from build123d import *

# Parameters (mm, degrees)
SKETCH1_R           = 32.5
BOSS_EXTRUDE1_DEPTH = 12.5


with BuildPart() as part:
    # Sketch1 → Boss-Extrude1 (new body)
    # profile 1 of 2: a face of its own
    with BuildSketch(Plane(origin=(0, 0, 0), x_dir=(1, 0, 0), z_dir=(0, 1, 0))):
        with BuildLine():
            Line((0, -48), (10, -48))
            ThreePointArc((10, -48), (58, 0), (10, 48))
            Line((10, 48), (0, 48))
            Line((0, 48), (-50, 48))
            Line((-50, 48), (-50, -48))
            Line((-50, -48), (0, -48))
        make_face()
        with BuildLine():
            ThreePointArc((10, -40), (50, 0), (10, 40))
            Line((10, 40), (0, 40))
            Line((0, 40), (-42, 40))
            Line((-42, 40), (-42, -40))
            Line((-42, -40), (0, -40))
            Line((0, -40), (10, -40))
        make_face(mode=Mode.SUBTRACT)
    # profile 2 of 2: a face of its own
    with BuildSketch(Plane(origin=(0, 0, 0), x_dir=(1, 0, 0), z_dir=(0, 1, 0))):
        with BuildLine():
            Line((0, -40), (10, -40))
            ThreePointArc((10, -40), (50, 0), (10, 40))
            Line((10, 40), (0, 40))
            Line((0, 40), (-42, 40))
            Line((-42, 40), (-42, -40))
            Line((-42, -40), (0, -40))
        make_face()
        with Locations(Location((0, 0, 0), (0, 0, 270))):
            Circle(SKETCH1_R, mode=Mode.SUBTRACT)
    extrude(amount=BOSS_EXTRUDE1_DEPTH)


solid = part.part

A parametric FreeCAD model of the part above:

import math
import FreeCAD as App
import Part
import Sketcher

V = App.Vector

doc = App.newDocument("Part")
params = doc.addObject("Spreadsheet::Sheet", "Params")
for row, (alias, value) in enumerate([
    ("sketch1_diameter", "65 mm"),
    ("sketch1_radius", "48 mm"),
    ("sketch1_width", "60 mm"),
    ("pad1_length", "12.5 mm"),
], start=1):
    params.set(f"A{row}", alias)
    params.set(f"B{row}", "=" + value)
    params.setAlias(f"B{row}", alias)

body = doc.addObject("PartDesign::Body", "Body")

sketch1 = body.newObject("Sketcher::SketchObject", "Sketch")
sketch1.AttachmentSupport = (doc.getObject("XZ_Plane"), [""])
sketch1.MapMode = "FlatFace"
sketch1.addGeometry(Part.ArcOfCircle(Part.Circle(V(10, 0, 0), V(0, 0, 1), 48), math.radians(-90), math.radians(90)), False)
sketch1.addGeometry(Part.LineSegment(V(10, -48, 0), V(-50, -48, 0)), False)
sketch1.addGeometry(Part.LineSegment(V(-50, -48, 0), V(-50, 48, 0)), False)
sketch1.addGeometry(Part.LineSegment(V(-50, 48, 0), V(10, 48, 0)), False)
sketch1.addGeometry(Part.Circle(V(0, 0, 0), V(0, 0, 1), 32), False)
sketch1.addConstraint(Sketcher.Constraint("Tangent", 0, 1, 1, 1))
sketch1.addConstraint(Sketcher.Constraint("Coincident", 1, 2, 2, 1))
sketch1.addConstraint(Sketcher.Constraint("Coincident", 2, 2, 3, 1))
sketch1.addConstraint(Sketcher.Constraint("Tangent", 3, 2, 0, 2))
sketch1.addConstraint(Sketcher.Constraint("Horizontal", 1))
sketch1.addConstraint(Sketcher.Constraint("Vertical", 2))
sketch1.addConstraint(Sketcher.Constraint("Horizontal", 3))
sketch1.addConstraint(Sketcher.Constraint("Coincident", 4, 3, -1, 1))
sketch1.addConstraint(Sketcher.Constraint("PointOnObject", 0, 3, -1))
sketch1.addConstraint(Sketcher.Constraint("Diameter", 4, 65.0))
sketch1.addConstraint(Sketcher.Constraint("Radius", 0, 48.0))
sketch1.addConstraint(Sketcher.Constraint("DistanceX", 1, 2, 1, 1, 60.0))
sketch1.addConstraint(Sketcher.Constraint("DistanceX", -1, 1, 0, 3, 10.0))
sketch1.setExpression("Constraints[9]", "Params.sketch1_diameter")
sketch1.setExpression("Constraints[10]", "Params.sketch1_radius")
sketch1.setExpression("Constraints[11]", "Params.sketch1_width")
pad1 = body.newObject("PartDesign::Pad", "Pad")
pad1.Profile = sketch1
pad1.setExpression("Length", "Params.pad1_length")
pad1.Reversed = True

doc.recompute()
